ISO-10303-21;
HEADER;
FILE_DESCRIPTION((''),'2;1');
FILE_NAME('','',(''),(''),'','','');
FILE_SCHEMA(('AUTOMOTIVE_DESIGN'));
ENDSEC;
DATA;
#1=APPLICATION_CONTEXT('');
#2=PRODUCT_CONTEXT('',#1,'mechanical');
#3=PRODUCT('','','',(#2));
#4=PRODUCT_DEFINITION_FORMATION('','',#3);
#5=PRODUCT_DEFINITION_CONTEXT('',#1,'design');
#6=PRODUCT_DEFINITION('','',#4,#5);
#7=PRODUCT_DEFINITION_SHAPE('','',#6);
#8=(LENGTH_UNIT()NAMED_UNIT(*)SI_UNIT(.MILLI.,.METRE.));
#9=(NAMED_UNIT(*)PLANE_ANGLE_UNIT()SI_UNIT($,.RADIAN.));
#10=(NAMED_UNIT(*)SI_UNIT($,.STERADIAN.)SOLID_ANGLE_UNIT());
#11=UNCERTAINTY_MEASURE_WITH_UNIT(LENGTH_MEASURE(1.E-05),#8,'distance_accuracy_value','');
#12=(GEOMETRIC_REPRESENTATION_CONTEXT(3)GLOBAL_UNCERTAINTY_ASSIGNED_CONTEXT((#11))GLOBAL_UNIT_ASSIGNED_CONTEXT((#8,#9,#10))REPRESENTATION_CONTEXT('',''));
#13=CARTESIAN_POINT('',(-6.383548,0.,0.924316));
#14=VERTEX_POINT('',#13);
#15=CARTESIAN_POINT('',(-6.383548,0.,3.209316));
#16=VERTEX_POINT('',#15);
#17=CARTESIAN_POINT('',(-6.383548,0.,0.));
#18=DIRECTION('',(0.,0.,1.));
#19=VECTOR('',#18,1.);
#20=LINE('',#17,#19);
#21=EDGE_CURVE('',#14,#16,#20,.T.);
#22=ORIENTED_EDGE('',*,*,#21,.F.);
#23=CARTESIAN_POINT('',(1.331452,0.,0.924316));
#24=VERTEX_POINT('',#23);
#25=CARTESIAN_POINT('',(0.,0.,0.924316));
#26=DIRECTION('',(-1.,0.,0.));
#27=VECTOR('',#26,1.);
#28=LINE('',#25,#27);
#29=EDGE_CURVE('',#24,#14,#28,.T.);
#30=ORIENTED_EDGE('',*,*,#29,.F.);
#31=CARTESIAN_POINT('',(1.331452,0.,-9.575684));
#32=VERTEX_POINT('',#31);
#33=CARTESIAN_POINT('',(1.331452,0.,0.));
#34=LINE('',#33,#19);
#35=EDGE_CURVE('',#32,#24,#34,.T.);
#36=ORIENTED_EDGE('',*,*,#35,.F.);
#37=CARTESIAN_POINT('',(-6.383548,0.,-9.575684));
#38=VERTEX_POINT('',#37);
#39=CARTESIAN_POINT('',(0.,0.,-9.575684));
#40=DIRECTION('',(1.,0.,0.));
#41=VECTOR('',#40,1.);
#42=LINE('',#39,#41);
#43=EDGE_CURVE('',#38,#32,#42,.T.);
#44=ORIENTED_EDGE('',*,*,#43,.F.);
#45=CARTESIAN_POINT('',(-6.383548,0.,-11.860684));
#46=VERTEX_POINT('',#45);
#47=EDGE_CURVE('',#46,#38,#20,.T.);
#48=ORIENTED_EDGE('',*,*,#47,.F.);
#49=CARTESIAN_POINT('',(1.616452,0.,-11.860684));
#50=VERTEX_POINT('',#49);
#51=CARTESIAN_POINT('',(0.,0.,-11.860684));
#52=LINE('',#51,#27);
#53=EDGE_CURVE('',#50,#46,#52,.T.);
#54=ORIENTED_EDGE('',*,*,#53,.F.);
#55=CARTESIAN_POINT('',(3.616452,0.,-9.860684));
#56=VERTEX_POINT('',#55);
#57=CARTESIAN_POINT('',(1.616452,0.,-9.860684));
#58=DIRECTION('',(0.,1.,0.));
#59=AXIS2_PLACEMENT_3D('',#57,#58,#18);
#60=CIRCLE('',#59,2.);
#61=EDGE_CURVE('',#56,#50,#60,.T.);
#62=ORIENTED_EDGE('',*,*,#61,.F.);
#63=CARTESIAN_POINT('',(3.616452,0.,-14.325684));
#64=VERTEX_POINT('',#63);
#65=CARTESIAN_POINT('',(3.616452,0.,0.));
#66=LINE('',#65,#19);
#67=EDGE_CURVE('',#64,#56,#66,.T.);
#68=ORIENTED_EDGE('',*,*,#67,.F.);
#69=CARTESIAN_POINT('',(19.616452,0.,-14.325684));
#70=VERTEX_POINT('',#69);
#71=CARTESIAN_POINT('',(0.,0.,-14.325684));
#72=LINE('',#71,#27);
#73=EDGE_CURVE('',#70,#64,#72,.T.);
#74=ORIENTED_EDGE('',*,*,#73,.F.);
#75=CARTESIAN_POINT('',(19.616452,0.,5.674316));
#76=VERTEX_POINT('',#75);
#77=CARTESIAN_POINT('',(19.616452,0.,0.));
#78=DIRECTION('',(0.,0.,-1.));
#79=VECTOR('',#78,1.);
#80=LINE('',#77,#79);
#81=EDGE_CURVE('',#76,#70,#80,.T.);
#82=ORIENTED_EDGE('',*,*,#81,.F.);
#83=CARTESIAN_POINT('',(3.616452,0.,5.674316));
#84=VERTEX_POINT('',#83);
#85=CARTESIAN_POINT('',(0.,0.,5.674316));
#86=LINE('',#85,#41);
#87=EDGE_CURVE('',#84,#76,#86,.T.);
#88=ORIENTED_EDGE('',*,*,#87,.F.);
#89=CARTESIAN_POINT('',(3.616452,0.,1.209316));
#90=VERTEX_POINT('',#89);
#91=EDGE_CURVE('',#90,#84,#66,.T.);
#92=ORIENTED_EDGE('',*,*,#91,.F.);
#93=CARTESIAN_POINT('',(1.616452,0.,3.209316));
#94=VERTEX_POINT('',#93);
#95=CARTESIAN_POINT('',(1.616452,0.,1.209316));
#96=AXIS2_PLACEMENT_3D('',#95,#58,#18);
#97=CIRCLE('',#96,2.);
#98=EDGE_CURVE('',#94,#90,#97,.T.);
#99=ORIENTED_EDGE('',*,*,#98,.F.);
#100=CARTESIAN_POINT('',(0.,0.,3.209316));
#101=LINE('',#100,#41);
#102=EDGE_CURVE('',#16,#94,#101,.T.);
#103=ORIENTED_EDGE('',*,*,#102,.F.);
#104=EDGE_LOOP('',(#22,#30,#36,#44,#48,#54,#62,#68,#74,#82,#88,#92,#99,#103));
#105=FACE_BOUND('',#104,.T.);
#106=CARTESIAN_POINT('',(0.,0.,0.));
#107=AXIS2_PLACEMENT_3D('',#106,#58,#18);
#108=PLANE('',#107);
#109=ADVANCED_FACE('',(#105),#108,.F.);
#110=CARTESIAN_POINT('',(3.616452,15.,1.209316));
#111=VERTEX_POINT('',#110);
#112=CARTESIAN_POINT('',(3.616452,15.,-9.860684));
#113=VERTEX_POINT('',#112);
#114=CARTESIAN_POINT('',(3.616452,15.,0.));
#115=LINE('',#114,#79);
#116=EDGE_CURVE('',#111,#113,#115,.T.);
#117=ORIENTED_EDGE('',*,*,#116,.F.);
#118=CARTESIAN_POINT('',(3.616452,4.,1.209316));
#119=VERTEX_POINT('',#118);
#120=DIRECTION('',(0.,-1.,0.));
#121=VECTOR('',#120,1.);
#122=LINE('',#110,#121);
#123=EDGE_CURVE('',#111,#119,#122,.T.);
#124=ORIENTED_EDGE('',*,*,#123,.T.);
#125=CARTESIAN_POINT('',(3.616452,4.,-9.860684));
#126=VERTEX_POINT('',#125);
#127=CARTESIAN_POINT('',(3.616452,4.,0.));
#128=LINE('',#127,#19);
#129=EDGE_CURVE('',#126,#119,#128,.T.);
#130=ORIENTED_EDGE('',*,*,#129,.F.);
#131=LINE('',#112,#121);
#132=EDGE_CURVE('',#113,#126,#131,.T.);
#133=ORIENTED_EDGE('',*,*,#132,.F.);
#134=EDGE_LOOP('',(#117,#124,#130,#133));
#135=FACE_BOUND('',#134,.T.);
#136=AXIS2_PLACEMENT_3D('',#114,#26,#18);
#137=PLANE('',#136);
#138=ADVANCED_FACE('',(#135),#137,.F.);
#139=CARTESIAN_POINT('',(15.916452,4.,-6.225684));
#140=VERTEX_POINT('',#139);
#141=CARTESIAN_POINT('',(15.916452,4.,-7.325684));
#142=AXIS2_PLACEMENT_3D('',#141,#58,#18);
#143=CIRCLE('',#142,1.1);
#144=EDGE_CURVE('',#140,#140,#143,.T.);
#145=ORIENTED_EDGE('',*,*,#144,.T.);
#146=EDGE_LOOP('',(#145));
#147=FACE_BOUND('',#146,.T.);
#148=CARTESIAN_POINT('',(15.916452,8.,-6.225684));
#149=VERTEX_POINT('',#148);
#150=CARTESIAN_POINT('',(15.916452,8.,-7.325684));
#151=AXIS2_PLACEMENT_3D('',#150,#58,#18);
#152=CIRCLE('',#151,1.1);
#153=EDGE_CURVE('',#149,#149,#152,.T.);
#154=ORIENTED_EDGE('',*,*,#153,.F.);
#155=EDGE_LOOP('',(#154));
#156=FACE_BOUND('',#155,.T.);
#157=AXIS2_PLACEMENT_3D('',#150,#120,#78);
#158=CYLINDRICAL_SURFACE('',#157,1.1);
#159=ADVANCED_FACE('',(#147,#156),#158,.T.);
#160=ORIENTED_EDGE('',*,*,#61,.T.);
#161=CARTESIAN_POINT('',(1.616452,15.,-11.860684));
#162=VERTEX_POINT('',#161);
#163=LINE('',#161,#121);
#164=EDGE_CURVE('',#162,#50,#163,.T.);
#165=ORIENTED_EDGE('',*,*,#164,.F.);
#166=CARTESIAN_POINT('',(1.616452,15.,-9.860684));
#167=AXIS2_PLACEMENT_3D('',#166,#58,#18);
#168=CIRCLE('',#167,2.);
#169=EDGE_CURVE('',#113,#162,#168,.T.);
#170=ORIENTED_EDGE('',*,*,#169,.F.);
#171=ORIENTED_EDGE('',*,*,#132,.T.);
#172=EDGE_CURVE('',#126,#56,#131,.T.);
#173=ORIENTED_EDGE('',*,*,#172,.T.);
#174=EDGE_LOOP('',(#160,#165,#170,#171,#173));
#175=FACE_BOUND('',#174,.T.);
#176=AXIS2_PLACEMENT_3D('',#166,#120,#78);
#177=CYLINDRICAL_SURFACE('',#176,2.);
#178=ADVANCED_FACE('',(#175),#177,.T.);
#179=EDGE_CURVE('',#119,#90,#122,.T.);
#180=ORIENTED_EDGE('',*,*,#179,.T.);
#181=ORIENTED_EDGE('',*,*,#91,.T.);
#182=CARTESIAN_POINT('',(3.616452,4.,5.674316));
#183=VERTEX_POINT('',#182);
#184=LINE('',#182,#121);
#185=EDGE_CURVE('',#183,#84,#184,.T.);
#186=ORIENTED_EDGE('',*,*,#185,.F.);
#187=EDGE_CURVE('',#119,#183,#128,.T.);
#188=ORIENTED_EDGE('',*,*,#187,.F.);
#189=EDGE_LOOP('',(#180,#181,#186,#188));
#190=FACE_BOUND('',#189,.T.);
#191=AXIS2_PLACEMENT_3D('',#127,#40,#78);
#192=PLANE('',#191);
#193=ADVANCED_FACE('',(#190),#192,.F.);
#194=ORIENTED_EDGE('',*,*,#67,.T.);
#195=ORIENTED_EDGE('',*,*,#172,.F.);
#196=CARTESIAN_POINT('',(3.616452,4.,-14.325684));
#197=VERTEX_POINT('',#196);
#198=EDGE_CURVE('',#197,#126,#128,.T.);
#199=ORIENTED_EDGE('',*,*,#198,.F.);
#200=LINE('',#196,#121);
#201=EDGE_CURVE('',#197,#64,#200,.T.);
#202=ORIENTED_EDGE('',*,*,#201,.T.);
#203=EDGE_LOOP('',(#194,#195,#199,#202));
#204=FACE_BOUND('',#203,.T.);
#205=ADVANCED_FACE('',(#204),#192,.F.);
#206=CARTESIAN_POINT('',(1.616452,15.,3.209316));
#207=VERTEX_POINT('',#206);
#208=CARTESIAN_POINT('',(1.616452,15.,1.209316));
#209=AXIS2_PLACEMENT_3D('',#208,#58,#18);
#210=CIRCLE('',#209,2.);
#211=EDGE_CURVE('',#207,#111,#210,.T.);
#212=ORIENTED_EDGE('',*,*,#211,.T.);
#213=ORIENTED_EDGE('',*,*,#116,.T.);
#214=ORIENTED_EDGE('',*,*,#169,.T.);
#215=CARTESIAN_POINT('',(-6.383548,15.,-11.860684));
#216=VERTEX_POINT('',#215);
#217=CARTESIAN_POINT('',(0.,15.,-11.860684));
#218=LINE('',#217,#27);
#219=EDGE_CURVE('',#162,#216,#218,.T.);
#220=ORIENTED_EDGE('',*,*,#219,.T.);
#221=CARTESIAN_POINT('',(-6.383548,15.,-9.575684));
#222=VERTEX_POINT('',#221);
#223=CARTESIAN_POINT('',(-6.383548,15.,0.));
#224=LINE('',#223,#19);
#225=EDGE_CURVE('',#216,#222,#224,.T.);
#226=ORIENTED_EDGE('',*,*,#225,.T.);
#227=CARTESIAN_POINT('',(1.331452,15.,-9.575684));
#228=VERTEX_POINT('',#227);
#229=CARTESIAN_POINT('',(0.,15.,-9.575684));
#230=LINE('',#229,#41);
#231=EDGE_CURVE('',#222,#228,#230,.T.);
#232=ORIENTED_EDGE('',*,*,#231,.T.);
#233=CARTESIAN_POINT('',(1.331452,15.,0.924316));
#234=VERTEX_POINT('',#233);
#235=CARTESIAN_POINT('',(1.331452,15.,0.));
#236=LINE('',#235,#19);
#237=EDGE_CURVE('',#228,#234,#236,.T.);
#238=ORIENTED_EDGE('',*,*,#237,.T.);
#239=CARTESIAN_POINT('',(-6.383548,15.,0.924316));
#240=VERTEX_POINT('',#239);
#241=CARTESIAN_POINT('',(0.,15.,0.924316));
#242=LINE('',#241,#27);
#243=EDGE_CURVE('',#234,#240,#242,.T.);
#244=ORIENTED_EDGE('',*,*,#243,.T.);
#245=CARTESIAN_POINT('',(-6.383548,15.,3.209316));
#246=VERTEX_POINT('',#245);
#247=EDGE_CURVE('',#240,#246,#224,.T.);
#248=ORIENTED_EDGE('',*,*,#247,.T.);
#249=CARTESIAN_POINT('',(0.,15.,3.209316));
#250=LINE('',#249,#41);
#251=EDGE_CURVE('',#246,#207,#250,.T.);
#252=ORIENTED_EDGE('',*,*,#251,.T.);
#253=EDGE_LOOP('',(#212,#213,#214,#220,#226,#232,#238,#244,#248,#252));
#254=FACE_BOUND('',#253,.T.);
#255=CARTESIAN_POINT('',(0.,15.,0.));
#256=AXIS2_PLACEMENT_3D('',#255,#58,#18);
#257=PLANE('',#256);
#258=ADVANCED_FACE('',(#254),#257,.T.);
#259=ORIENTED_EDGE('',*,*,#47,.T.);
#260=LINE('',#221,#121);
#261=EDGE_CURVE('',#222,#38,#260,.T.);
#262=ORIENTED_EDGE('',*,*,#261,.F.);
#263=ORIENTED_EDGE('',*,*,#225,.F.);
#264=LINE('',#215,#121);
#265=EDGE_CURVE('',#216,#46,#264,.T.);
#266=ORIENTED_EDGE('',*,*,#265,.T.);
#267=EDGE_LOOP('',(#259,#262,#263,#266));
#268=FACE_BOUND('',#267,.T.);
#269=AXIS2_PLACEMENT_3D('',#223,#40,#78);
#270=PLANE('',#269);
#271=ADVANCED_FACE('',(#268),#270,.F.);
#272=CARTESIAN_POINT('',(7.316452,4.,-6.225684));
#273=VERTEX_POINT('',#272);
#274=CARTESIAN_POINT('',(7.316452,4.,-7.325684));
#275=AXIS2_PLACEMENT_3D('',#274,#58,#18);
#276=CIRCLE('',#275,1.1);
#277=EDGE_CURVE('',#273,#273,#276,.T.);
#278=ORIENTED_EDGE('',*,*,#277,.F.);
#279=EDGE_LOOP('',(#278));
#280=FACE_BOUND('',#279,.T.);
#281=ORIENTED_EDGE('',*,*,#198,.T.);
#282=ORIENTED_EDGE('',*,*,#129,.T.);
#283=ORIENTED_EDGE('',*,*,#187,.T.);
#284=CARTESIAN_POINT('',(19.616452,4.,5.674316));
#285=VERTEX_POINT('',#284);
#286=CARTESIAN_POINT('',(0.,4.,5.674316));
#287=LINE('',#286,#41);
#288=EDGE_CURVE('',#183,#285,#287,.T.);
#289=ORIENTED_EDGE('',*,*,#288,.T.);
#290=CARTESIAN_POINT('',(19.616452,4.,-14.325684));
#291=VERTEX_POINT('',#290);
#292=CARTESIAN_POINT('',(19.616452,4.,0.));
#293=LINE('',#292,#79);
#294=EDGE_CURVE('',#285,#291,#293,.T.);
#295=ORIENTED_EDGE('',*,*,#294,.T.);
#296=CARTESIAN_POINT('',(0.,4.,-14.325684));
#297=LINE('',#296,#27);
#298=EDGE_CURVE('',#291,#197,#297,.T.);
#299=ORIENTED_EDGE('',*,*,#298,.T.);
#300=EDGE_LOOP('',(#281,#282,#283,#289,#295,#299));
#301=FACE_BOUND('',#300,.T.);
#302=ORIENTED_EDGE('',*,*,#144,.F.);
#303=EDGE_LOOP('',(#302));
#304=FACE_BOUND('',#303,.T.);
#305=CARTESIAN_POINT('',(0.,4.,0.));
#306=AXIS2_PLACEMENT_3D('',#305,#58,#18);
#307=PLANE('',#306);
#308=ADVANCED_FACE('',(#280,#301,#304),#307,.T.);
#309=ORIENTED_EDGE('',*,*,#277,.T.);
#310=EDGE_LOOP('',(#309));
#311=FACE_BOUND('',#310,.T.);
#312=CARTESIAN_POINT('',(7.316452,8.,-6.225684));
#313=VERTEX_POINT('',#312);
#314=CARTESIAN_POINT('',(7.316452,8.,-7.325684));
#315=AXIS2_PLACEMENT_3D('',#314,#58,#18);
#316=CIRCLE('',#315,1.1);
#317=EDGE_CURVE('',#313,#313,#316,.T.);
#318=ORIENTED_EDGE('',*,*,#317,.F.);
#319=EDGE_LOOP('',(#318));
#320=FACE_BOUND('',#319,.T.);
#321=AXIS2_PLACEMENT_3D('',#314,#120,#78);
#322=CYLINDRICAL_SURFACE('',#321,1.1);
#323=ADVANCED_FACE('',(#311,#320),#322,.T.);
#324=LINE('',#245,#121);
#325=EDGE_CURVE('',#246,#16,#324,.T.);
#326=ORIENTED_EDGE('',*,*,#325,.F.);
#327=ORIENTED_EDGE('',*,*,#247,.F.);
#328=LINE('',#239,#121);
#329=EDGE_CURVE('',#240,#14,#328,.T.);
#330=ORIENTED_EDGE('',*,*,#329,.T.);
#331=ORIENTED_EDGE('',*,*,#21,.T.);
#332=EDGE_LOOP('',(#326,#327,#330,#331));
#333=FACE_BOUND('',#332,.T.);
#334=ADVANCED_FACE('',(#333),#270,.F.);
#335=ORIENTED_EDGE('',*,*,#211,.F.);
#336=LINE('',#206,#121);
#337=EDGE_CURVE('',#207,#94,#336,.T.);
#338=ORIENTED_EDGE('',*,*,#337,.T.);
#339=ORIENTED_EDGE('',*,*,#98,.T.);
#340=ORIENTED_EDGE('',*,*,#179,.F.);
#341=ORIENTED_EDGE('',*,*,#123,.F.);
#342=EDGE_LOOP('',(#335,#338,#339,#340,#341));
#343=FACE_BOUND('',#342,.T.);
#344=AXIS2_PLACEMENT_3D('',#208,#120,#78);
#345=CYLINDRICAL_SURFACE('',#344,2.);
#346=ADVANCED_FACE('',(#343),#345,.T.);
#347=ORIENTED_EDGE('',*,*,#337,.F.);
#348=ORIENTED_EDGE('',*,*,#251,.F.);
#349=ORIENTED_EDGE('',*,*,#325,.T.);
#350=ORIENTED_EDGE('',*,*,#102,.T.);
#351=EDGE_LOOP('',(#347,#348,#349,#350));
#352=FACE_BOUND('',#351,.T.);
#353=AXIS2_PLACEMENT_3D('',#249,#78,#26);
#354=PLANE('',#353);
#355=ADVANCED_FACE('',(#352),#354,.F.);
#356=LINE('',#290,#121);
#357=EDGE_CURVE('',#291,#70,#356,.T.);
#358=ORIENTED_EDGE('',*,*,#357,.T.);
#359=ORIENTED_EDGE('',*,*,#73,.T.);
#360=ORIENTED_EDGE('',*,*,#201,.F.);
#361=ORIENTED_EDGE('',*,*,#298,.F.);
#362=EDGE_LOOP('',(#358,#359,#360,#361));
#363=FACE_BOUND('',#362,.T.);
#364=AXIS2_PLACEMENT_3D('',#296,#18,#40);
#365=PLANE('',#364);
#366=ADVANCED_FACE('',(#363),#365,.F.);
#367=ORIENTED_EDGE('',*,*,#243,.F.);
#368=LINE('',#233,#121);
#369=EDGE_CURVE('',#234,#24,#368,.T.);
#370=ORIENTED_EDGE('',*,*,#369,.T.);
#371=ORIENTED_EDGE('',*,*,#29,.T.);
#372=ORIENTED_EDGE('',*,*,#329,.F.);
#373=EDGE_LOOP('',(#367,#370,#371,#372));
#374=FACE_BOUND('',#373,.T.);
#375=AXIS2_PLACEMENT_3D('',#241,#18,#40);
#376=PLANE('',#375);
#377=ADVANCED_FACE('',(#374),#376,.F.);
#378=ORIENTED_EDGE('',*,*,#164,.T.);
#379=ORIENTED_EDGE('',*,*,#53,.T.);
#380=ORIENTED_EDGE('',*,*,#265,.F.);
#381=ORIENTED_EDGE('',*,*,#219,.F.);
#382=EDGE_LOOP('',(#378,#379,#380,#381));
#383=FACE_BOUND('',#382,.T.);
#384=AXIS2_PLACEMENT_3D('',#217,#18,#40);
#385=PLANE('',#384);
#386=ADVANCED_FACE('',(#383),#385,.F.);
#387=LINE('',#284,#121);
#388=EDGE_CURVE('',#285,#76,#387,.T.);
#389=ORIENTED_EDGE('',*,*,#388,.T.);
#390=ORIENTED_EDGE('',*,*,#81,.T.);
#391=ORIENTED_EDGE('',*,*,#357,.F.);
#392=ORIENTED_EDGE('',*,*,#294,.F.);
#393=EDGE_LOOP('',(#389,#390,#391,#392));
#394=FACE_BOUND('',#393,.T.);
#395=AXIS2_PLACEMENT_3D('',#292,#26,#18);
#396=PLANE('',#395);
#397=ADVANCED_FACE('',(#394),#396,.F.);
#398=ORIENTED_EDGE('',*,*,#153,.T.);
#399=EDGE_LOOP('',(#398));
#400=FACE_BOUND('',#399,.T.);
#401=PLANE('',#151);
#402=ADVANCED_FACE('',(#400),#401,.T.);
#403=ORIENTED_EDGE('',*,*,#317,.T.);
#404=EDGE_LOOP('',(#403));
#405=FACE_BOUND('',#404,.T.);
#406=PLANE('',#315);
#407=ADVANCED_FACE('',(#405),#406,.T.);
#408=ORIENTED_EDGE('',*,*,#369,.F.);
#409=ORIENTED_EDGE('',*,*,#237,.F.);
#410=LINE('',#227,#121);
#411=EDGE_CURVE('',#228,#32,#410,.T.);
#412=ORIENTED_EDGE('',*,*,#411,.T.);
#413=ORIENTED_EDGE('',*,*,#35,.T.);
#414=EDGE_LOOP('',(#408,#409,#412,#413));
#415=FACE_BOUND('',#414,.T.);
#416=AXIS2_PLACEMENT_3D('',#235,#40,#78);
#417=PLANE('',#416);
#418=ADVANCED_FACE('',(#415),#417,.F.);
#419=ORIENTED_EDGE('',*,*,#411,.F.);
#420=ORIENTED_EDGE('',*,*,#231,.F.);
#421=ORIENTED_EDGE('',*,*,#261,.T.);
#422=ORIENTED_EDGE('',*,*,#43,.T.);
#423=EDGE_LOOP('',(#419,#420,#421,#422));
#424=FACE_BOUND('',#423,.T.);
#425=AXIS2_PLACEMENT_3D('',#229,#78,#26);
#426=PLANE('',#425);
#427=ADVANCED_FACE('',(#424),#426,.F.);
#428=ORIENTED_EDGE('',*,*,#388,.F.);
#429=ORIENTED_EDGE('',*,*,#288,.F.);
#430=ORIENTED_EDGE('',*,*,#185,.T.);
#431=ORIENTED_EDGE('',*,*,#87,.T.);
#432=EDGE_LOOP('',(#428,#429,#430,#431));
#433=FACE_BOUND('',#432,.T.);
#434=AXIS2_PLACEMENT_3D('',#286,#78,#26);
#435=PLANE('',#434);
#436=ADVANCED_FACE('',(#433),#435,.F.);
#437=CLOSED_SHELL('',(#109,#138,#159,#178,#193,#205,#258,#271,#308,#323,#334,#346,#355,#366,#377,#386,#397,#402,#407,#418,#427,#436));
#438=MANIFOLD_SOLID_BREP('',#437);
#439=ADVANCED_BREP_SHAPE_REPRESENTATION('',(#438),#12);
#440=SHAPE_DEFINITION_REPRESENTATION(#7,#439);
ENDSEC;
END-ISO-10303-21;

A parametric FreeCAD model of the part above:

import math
import FreeCAD as App
import Part
import Sketcher
from FreeCAD import Vector
Q = App.Units.Quantity


def add_polygon(sketch, points):
    """Adds a closed chain of lines whose ends are joined by coincident constraints."""
    first, n = sketch.GeometryCount, len(points)
    for a, b in zip(points, points[1:] + points[:1]):
        sketch.addGeometry(Part.LineSegment(App.Vector(*a, 0), App.Vector(*b, 0)), False)
    for i in range(n):
        sketch.addConstraint(Sketcher.Constraint("Coincident", first + i, 2, first + (i + 1) % n, 1))

doc = App.newDocument("Part")
body = doc.addObject("PartDesign::Body", "Body")

sketch1 = body.newObject("Sketcher::SketchObject", "Sketch")
sketch1.AttachmentSupport = (doc.getObject("XZ_Plane"), [""])
sketch1.MapMode = "FlatFace"
sketch1.addGeometry(Part.LineSegment(Vector(1.6, -11.9, 0), Vector(-6.4, -11.9, 0)), False)
sketch1.addGeometry(Part.LineSegment(Vector(-6.4, -11.9, 0), Vector(-6.4, -9.6, 0)), False)
sketch1.addGeometry(Part.LineSegment(Vector(-6.4, -9.6, 0), Vector(1.3, -9.6, 0)), False)
sketch1.addGeometry(Part.LineSegment(Vector(1.3, -9.6, 0), Vector(1.3, 0.9, 0)), False)
sketch1.addGeometry(Part.LineSegment(Vector(1.3, 0.9, 0), Vector(-6.4, 0.9, 0)), False)
sketch1.addGeometry(Part.LineSegment(Vector(-6.4, 0.9, 0), Vector(-6.4, 3.2, 0)), False)
sketch1.addGeometry(Part.LineSegment(Vector(-6.4, 3.2, 0), Vector(1.6, 3.2, 0)), False)
sketch1.addGeometry(Part.ArcOfCircle(Part.Circle(Vector(1.6, 1.2, 0), Vector(0, 0, 1), 2), math.radians(0), math.radians(90)), False)
sketch1.addGeometry(Part.LineSegment(Vector(3.6, 1.2, 0), Vector(3.6, -9.9, 0)), False)
sketch1.addGeometry(Part.ArcOfCircle(Part.Circle(Vector(1.6, -9.9, 0), Vector(0, 0, 1), 2), math.radians(-90), math.radians(0)), False)
sketch1.addConstraint(Sketcher.Constraint("Coincident", 0, 2, 1, 1))
sketch1.addConstraint(Sketcher.Constraint("Coincident", 1, 2, 2, 1))
sketch1.addConstraint(Sketcher.Constraint("Coincident", 2, 2, 3, 1))
sketch1.addConstraint(Sketcher.Constraint("Coincident", 3, 2, 4, 1))
sketch1.addConstraint(Sketcher.Constraint("Coincident", 4, 2, 5, 1))
sketch1.addConstraint(Sketcher.Constraint("Coincident", 5, 2, 6, 1))
sketch1.addConstraint(Sketcher.Constraint("Tangent", 6, 2, 7, 2))
sketch1.addConstraint(Sketcher.Constraint("Tangent", 7, 1, 8, 1))
sketch1.addConstraint(Sketcher.Constraint("Tangent", 8, 2, 9, 2))
sketch1.addConstraint(Sketcher.Constraint("Tangent", 9, 1, 0, 1))
sketch1.addConstraint(Sketcher.Constraint("Horizontal", 0))
sketch1.addConstraint(Sketcher.Constraint("Vertical", 1))
sketch1.addConstraint(Sketcher.Constraint("Horizontal", 2))
sketch1.addConstraint(Sketcher.Constraint("Vertical", 3))
sketch1.addConstraint(Sketcher.Constraint("Horizontal", 4))
sketch1.addConstraint(Sketcher.Constraint("Vertical", 5))
sketch1.addConstraint(Sketcher.Constraint("Horizontal", 6))
sketch1.addConstraint(Sketcher.Constraint("Vertical", 8))
sketch1.addConstraint(Sketcher.Constraint("Equal", 7, 9))
sketch1.addConstraint(Sketcher.Constraint("Vertical", 1, 2, 4, 2))
sketch1.addConstraint(Sketcher.Constraint("Equal", 1, 5))
sketch1.addConstraint(Sketcher.Constraint("Radius", 7, Q("2 mm")))
sketch1.addConstraint(Sketcher.Constraint("DistanceX", 0, 2, 0, 1, Q("8 mm")))
sketch1.addConstraint(Sketcher.Constraint("DistanceY", 3, 1, 3, 2, Q("10.5 mm")))
sketch1.addConstraint(Sketcher.Constraint("DistanceY", 8, 2, 8, 1, Q("11.07 mm")))
sketch1.addConstraint(Sketcher.Constraint("DistanceX", 2, 1, 2, 2, Q("7.715 mm")))
sketch1.addConstraint(Sketcher.Constraint("DistanceX", -1, 1, 7, 3, Q("1.616452 mm")))
sketch1.addConstraint(Sketcher.Constraint("DistanceY", -1, 1, 7, 3, Q("1.209316 mm")))
pad1 = body.newObject("PartDesign::Pad", "Pad")
pad1.Profile = sketch1
pad1.Length = 15
pad1.Reversed = True

sketch2 = body.newObject("Sketcher::SketchObject", "Sketch001")
sketch2.AttachmentSupport = (doc.getObject("XZ_Plane"), [""])
sketch2.MapMode = "FlatFace"
add_polygon(sketch2, [(4, -14), (4, 6), (20, 6), (20, -14)])
sketch2.addConstraint(Sketcher.Constraint("Vertical", 0))
sketch2.addConstraint(Sketcher.Constraint("Horizontal", 1))
sketch2.addConstraint(Sketcher.Constraint("Vertical", 2))
sketch2.addConstraint(Sketcher.Constraint("Horizontal", 3))
sketch2.addConstraint(Sketcher.Constraint("DistanceX", 1, 1, 1, 2, Q("16 mm")))
sketch2.addConstraint(Sketcher.Constraint("DistanceY", 0, 1, 0, 2, Q("20 mm")))
sketch2.addConstraint(Sketcher.Constraint("DistanceX", -1, 1, 0, 2, Q("3.616452 mm")))
sketch2.addConstraint(Sketcher.Constraint("DistanceY", -1, 1, 0, 2, Q("5.674316 mm")))
pad2 = body.newObject("PartDesign::Pad", "Pad001")
pad2.Profile = sketch2
pad2.Length = 4
pad2.Reversed = True

sketch3 = body.newObject("Sketcher::SketchObject", "Sketch002")
sketch3.AttachmentSupport = (doc.getObject("XZ_Plane"), [""])
sketch3.MapMode = "FlatFace"
sketch3.AttachmentOffset = App.Placement(Vector(0, 0, -4), App.Rotation())
sketch3.addGeometry(Part.Circle(Vector(7.3, -7.3, 0), Vector(0, 0, 1), 1.1), False)
sketch3.addGeometry(Part.Circle(Vector(15.9, -7.3, 0), Vector(0, 0, 1), 1.1), False)
sketch3.addConstraint(Sketcher.Constraint("Equal", 0, 1))
sketch3.addConstraint(Sketcher.Constraint("Horizontal", 0, 3, 1, 3))
sketch3.addConstraint(Sketcher.Constraint("Diameter", 0, Q("2.2 mm")))
sketch3.addConstraint(Sketcher.Constraint("DistanceX", 0, 3, 1, 3, Q("8.6 mm")))
sketch3.addConstraint(Sketcher.Constraint("DistanceX", -1, 1, 0, 3, Q("7.316452 mm")))
sketch3.addConstraint(Sketcher.Constraint("DistanceY", 0, 3, -1, 1, Q("7.325684 mm")))
pad3 = body.newObject("PartDesign::Pad", "Pad002")
pad3.Profile = sketch3
pad3.Length = 4
pad3.Reversed = True

doc.recompute()
